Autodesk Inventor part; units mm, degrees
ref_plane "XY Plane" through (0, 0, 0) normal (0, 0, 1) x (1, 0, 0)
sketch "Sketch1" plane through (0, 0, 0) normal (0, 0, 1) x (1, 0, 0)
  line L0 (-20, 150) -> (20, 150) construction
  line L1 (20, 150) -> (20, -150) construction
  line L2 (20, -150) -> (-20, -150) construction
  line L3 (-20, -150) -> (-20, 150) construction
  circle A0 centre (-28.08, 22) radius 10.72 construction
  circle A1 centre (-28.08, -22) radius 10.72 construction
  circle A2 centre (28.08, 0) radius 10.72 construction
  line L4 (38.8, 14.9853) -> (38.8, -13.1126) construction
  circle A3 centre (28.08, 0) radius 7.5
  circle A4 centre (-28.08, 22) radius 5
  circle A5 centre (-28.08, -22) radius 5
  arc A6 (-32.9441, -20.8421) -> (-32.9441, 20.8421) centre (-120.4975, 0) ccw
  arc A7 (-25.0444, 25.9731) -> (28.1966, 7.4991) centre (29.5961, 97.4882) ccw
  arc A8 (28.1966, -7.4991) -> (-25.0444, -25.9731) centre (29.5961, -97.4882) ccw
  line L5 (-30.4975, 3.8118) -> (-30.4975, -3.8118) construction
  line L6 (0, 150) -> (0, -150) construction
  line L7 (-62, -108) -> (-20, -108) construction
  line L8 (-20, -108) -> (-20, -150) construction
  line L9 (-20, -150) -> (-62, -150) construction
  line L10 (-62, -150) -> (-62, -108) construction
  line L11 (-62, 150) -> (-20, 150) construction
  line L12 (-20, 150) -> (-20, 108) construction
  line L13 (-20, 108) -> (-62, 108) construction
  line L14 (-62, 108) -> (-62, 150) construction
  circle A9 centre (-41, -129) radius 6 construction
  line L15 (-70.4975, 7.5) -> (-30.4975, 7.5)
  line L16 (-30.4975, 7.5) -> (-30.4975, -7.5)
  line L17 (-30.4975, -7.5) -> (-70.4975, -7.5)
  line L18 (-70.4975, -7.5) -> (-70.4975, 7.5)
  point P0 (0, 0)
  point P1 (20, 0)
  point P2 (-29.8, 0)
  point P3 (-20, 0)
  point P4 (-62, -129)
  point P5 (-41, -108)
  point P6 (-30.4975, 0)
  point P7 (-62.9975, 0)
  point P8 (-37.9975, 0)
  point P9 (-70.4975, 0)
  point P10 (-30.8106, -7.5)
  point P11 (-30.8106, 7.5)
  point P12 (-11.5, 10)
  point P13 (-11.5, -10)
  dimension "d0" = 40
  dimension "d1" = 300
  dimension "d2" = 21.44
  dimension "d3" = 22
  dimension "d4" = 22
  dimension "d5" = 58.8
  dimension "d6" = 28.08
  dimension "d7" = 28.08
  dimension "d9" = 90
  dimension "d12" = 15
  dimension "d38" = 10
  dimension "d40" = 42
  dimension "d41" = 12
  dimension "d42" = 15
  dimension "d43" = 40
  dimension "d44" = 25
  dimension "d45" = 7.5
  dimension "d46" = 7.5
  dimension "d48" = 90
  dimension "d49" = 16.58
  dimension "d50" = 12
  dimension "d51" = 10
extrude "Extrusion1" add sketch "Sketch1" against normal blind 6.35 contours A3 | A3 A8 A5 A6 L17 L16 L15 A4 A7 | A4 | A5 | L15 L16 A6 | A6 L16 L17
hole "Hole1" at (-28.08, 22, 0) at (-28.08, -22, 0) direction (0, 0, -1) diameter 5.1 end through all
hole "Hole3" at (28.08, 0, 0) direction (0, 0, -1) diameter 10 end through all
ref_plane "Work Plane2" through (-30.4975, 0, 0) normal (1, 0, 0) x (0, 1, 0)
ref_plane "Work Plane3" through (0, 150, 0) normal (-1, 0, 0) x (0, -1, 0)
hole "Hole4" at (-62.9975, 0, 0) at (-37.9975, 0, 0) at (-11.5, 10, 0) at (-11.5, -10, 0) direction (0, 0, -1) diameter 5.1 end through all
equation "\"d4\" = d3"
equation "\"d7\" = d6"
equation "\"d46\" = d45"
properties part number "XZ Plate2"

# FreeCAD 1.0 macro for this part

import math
import FreeCAD as App
import Part
import Sketcher
Q = App.Units.Quantity

doc = App.newDocument("Part")
body = doc.addObject("PartDesign::Body", "Body")

# Sketch on XY plane
sketch1 = body.newObject("Sketcher::SketchObject", "Sketch")
sketch1.AttachmentSupport = (doc.getObject("XY_Plane"), [""])
sketch1.MapMode = "FlatFace"
sketch1.addGeometry([
    Part.ArcOfCircle(Part.Circle(App.Vector(28, 0, 0), App.Vector(0, 0, 1), 8), math.radians(-89), math.radians(89)),  # 0
    Part.ArcOfCircle(Part.Circle(App.Vector(30, 97, 0), App.Vector(0, 0, 1), 90), math.radians(-127), math.radians(-91)),  # 1
    Part.ArcOfCircle(Part.Circle(App.Vector(-28, 22, 0), App.Vector(0, 0, 1), 5), math.radians(53), math.radians(193)),  # 2
    Part.ArcOfCircle(Part.Circle(App.Vector(-120, 0, 0), App.Vector(0, 0, 1), 90), math.radians(-13), math.radians(13)),  # 3
    Part.ArcOfCircle(Part.Circle(App.Vector(-28, -22, 0), App.Vector(0, 0, 1), 5), math.radians(167), math.radians(307)),  # 4
    Part.ArcOfCircle(Part.Circle(App.Vector(30, -97, 0), App.Vector(0, 0, 1), 90), math.radians(91), math.radians(127)),  # 5
], False)
sketch1.addConstraint([
    Sketcher.Constraint("Tangent", 0, 2, 1, 2),
    Sketcher.Constraint("Tangent", 1, 1, 2, 1),
    Sketcher.Constraint("Tangent", 2, 2, 3, 2),
    Sketcher.Constraint("Tangent", 3, 1, 4, 1),
    Sketcher.Constraint("Tangent", 4, 2, 5, 2),
    Sketcher.Constraint("Tangent", 5, 1, 0, 1),
    Sketcher.Constraint("Equal", 1, 3),
    Sketcher.Constraint("Equal", 2, 4),
    Sketcher.Constraint("Equal", 3, 5),
    Sketcher.Constraint("Symmetric", 2, 3, 4, 3, -1),
    Sketcher.Constraint("PointOnObject", 0, 3, -1),
    Sketcher.Constraint("Radius", 1, Q("90 mm")),
    Sketcher.Constraint("Radius", 2, Q("5 mm")),
    Sketcher.Constraint("Radius", 0, Q("7.5 mm")),
    Sketcher.Constraint("DistanceY", -1, 1, 2, 3, Q("22 mm")),
    Sketcher.Constraint("DistanceX", -1, 1, 0, 3, Q("28.08 mm")),
    Sketcher.Constraint("DistanceX", 2, 3, -1, 1, Q("28.08 mm")),
])
pad1 = body.newObject("PartDesign::Pad", "Pad")
pad1.Profile = sketch1
pad1.Length = 6.35
pad1.Reversed = True

# Sketch on XY plane
sketch2 = body.newObject("Sketcher::SketchObject", "Sketch001")
sketch2.AttachmentSupport = (doc.getObject("XY_Plane"), [""])
sketch2.MapMode = "FlatFace"
sketch2.addGeometry([
    Part.Circle(App.Vector(-28.1, 22, 0), App.Vector(0, 0, 1), 2.5),
    Part.Circle(App.Vector(-28.1, -22, 0), App.Vector(0, 0, 1), 2.5),
], False)
sketch2.addConstraint([
    Sketcher.Constraint("Equal", 0, 1),
    Sketcher.Constraint("Symmetric", 0, 3, 1, 3, -1),
    Sketcher.Constraint("Diameter", 0, Q("5.1 mm")),
    Sketcher.Constraint("DistanceY", -1, 1, 0, 3, Q("22 mm")),
    Sketcher.Constraint("DistanceX", 0, 3, -1, 1, Q("28.08 mm")),
])
doc.recompute()
hole = body.newObject("PartDesign::Hole", "Hole")
hole.Profile = sketch2
hole.ThreadType = "None"
hole.Diameter = 5.1
hole.DepthType = "ThroughAll"

# Sketch on XY plane
sketch3 = body.newObject("Sketcher::SketchObject", "Sketch002")
sketch3.AttachmentSupport = (doc.getObject("XY_Plane"), [""])
sketch3.MapMode = "FlatFace"
sketch3.addGeometry(Part.Circle(App.Vector(28, 0, 0), App.Vector(0, 0, 1), 5), False)
sketch3.addConstraint([
    Sketcher.Constraint("PointOnObject", 0, 3, -1),
    Sketcher.Constraint("Diameter", 0, Q("10 mm")),
    Sketcher.Constraint("DistanceX", -1, 1, 0, 3, Q("28.08 mm")),
])
doc.recompute()
hole2 = body.newObject("PartDesign::Hole", "Hole001")
hole2.Profile = sketch3
hole2.ThreadType = "None"
hole2.Diameter = 10
hole2.DepthType = "ThroughAll"

# Sketch on XY plane
sketch4 = body.newObject("Sketcher::SketchObject", "Sketch003")
sketch4.AttachmentSupport = (doc.getObject("XY_Plane"), [""])
sketch4.MapMode = "FlatFace"
sketch4.addGeometry([
    Part.Circle(App.Vector(-63, 0, 0), App.Vector(0, 0, 1), 2.5),
    Part.Circle(App.Vector(-38, 0, 0), App.Vector(0, 0, 1), 2.5),
    Part.Circle(App.Vector(-11.5, 10, 0), App.Vector(0, 0, 1), 2.5),
    Part.Circle(App.Vector(-11.5, -10, 0), App.Vector(0, 0, 1), 2.5),
], False)
sketch4.addConstraint([
    Sketcher.Constraint("Equal", 0, 1),
    Sketcher.Constraint("Equal", 1, 2),
    Sketcher.Constraint("Equal", 2, 3),
    Sketcher.Constraint("Symmetric", 2, 3, 3, 3, -1),
    Sketcher.Constraint("PointOnObject", 0, 3, -1),
    Sketcher.Constraint("PointOnObject", 1, 3, -1),
    Sketcher.Constraint("Diameter", 0, Q("5.1 mm")),
    Sketcher.Constraint("DistanceY", -1, 1, 2, 3, Q("10 mm")),
    Sketcher.Constraint("DistanceX", 0, 3, 1, 3, Q("25 mm")),
    Sketcher.Constraint("DistanceX", 2, 3, -1, 1, Q("11.5 mm")),
    Sketcher.Constraint("DistanceX", 0, 3, -1, 1, Q("62.9975 mm")),
])
doc.recompute()
hole3 = body.newObject("PartDesign::Hole", "Hole002")
hole3.Profile = sketch4
hole3.ThreadType = "None"
hole3.Diameter = 5.1
hole3.DepthType = "ThroughAll"

doc.recompute()
